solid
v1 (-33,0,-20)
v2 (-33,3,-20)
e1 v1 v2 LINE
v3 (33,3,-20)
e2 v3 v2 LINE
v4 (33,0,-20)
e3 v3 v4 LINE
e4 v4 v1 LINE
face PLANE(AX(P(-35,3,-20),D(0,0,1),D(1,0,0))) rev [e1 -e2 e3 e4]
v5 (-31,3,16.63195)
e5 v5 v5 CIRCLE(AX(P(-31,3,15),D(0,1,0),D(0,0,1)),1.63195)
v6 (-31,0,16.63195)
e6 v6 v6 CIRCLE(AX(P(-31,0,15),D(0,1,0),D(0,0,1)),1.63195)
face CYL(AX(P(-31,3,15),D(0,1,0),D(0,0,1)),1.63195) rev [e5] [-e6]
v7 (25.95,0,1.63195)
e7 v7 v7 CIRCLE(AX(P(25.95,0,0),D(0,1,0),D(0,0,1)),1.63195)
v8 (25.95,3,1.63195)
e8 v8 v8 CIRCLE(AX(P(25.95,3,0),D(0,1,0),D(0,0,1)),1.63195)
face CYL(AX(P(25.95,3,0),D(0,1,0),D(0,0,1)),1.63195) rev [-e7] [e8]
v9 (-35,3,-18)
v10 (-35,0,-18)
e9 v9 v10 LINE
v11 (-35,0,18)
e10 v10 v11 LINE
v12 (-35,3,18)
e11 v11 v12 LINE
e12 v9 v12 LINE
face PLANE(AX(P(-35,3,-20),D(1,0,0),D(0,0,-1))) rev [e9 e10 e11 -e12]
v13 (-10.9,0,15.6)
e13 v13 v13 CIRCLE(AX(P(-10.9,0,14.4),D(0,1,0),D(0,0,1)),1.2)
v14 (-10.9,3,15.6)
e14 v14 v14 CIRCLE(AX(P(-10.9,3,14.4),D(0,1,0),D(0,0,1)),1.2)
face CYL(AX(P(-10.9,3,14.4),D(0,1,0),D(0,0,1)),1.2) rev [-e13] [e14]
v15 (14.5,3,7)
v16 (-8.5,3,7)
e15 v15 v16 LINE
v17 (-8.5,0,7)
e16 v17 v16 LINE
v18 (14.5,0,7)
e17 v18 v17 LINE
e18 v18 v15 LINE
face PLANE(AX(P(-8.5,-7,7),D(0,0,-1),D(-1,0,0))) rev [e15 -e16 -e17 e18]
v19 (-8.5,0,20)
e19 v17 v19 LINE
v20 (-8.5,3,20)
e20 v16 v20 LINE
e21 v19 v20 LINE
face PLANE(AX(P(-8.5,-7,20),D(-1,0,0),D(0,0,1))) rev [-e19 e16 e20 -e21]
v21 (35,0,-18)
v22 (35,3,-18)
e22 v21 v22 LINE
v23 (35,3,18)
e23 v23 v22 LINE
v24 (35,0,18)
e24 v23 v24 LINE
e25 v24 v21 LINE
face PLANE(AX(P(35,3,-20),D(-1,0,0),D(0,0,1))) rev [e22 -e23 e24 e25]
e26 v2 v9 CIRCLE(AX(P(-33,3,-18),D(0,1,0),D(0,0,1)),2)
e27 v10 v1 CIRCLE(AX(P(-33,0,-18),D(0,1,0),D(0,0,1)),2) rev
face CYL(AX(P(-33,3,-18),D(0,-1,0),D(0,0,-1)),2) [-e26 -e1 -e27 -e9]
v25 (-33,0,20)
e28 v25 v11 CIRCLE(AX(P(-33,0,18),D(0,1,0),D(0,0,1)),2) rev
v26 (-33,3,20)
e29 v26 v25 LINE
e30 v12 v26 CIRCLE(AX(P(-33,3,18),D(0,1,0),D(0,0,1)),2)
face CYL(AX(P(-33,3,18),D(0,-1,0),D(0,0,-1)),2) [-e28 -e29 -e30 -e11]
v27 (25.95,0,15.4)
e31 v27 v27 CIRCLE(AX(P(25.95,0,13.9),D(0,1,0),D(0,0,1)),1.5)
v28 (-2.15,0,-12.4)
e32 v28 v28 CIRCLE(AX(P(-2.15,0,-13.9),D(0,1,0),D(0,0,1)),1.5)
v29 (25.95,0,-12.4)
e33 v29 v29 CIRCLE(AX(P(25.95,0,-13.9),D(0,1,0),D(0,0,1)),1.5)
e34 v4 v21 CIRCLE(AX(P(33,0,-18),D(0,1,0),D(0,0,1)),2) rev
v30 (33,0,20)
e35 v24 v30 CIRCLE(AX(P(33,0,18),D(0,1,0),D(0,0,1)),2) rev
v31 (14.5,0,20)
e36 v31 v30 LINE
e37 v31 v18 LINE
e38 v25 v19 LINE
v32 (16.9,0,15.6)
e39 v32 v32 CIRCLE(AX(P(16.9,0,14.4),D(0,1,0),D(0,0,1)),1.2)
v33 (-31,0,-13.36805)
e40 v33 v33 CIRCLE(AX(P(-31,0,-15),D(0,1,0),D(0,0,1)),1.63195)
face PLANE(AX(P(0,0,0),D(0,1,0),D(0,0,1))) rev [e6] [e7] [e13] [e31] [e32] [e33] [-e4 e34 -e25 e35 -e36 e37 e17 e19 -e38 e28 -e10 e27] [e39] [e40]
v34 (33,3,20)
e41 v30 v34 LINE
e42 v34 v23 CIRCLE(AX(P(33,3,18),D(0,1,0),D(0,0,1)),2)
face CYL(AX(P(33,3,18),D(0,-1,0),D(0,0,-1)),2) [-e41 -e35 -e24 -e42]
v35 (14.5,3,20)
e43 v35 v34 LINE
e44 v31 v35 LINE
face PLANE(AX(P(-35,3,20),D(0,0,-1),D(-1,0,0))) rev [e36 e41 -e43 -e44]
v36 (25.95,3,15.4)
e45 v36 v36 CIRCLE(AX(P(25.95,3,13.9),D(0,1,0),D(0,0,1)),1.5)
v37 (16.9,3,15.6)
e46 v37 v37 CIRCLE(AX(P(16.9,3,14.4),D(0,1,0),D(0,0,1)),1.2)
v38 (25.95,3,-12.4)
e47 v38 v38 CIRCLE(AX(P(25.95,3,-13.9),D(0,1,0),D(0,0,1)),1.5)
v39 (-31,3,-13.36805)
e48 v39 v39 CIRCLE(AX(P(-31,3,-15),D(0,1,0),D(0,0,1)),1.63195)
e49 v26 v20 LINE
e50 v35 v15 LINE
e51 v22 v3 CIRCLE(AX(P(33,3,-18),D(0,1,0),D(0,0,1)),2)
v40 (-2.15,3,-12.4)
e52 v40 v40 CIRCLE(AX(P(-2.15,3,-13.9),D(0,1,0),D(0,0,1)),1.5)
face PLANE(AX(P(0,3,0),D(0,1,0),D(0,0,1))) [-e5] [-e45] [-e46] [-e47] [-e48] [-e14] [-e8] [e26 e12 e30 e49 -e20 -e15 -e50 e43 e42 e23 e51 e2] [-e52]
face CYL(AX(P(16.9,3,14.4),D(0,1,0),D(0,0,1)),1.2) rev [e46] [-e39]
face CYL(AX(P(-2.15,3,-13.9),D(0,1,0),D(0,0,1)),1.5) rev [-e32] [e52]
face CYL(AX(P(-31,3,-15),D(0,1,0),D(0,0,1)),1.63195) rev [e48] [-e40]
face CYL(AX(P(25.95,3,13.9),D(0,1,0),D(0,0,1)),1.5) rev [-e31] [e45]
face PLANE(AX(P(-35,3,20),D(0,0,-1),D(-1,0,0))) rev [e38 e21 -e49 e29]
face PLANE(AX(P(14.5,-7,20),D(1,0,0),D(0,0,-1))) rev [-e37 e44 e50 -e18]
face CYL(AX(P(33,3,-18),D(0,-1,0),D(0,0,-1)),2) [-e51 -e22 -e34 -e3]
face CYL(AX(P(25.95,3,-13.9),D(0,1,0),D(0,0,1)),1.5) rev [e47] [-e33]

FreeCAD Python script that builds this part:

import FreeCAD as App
import Part
import Sketcher

V = App.Vector


def edges_at(feature, points):
    """Names of the edges that pass closest to the given points."""
    edges = feature.Shape.Edges
    near = lambda p: min(range(len(edges)), key=lambda i: edges[i].distToShape(Part.Vertex(*p))[0])
    return sorted({f"Edge{near(p) + 1}" for p in points})


def add_polygon(sketch, points):
    """Adds a closed chain of lines whose ends are joined by coincident constraints."""
    first, n = sketch.GeometryCount, len(points)
    for a, b in zip(points, points[1:] + points[:1]):
        sketch.addGeometry(Part.LineSegment(App.Vector(*a, 0), App.Vector(*b, 0)), False)
    for i in range(n):
        sketch.addConstraint(Sketcher.Constraint("Coincident", first + i, 2, first + (i + 1) % n, 1))

doc = App.newDocument("Part")
params = doc.addObject("Spreadsheet::Sheet", "Params")
for row, (alias, value) in enumerate([
    ("sketch1_width", "70 mm"),
    ("sketch1_height", "40 mm"),
    ("pad1_length", "3 mm"),
    ("sketch2_diameter", "3 mm"),
    ("hole_diameter", "3 mm"),
    ("hole2_diameter", "3.2639 mm"),
    ("sketch4_diameter", "2.4 mm"),
    ("hole3_diameter", "2.4 mm"),
    ("sketch5_width", "23 mm"),
    ("sketch5_height", "13 mm"),
    ("pocket1_length", "10 mm"),
    ("fillet_radius", "2 mm"),
], start=1):
    params.set(f"A{row}", alias)
    params.set(f"B{row}", "=" + value)
    params.setAlias(f"B{row}", alias)

body = doc.addObject("PartDesign::Body", "Body")

# Sketch on XZ plane
sketch1 = doc.addObject("Sketcher::SketchObject", "Sketch")
body.addObject(sketch1)
sketch1.AttachmentSupport = (doc.XZ_Plane, [""])
sketch1.MapMode = "FlatFace"
add_polygon(sketch1, [(-35, -20), (-35, 20), (35, 20), (35, -20)])  # lines 0-3
sketch1.addConstraint([
    Sketcher.Constraint("Vertical", 0),
    Sketcher.Constraint("Horizontal", 1),
    Sketcher.Constraint("Vertical", 2),
    Sketcher.Constraint("Horizontal", 3),
    Sketcher.Constraint("Symmetric", 0, 2, 2, 2, -1, 1),
    Sketcher.Constraint("DistanceX", 1, 1, 1, 2, 70.0),
    Sketcher.Constraint("DistanceY", 0, 1, 0, 2, 40.0),
])
sketch1.setExpression("Constraints[9]", "Params.sketch1_width")
sketch1.setExpression("Constraints[10]", "Params.sketch1_height")
pad1 = doc.addObject("PartDesign::Pad", "Pad")
body.addObject(pad1)
pad1.Profile = sketch1
pad1.setExpression("Length", "Params.pad1_length")
pad1.Reversed = True

# Sketch on XZ plane
sketch2 = doc.addObject("Sketcher::SketchObject", "Sketch001")
body.addObject(sketch2)
sketch2.AttachmentSupport = (doc.XZ_Plane, [""])
sketch2.MapMode = "FlatFace"
sketch2.AttachmentOffset = App.Placement(V(0, 0, -3), App.Rotation())
sketch2.addGeometry([
    Part.Circle(V(-2.1, -13.9, 0), V(0, 0, 1), 1.5),
    Part.Circle(V(25.9, -13.9, 0), V(0, 0, 1), 1.5),
    Part.Circle(V(25.9, 13.9, 0), V(0, 0, 1), 1.5),
], False)
sketch2.addConstraint([
    Sketcher.Constraint("Equal", 0, 1),
    Sketcher.Constraint("Equal", 1, 2),
    Sketcher.Constraint("Symmetric", 1, 3, 2, 3, -1),
    Sketcher.Constraint("Horizontal", 0, 3, 1, 3),
    Sketcher.Constraint("Diameter", 0, 3.0),
    Sketcher.Constraint("DistanceY", 0, 3, -1, 1, 13.9),
    Sketcher.Constraint("DistanceX", 0, 3, 1, 3, 28.1),
    Sketcher.Constraint("DistanceX", 0, 3, -1, 1, 2.15),
])
sketch2.setExpression("Constraints[4]", "Params.sketch2_diameter")
doc.recompute()
hole = doc.addObject("PartDesign::Hole", "Hole")
body.addObject(hole)
hole.Profile = sketch2
hole.ThreadType = "None"
hole.setExpression("Diameter", "Params.hole_diameter")
hole.DepthType = "ThroughAll"
hole.Reversed = True

# Sketch on XZ plane
sketch3 = doc.addObject("Sketcher::SketchObject", "Sketch002")
body.addObject(sketch3)
sketch3.AttachmentSupport = (doc.XZ_Plane, [""])
sketch3.MapMode = "FlatFace"
sketch3.AttachmentOffset = App.Placement(V(0, 0, -3), App.Rotation())
sketch3.addGeometry([
    Part.Circle(V(-31, -15, 0), V(0, 0, 1), 1.6),
    Part.Circle(V(-31, 15, 0), V(0, 0, 1), 1.6),
    Part.Circle(V(25.9, 0, 0), V(0, 0, 1), 1.6),
], False)
sketch3.addConstraint([
    Sketcher.Constraint("Equal", 0, 1),
    Sketcher.Constraint("Equal", 1, 2),
    Sketcher.Constraint("Symmetric", 0, 3, 1, 3, -1),
    Sketcher.Constraint("PointOnObject", 2, 3, -1),
    Sketcher.Constraint("DistanceX", 0, 3, -1, 1, 31.0),
    Sketcher.Constraint("DistanceY", 0, 3, -1, 1, 15.0),
    Sketcher.Constraint("Diameter", 0, 3.2639),
    Sketcher.Constraint("DistanceX", -1, 1, 2, 3, 25.95),
])
doc.recompute()
hole2 = doc.addObject("PartDesign::Hole", "Hole001")
body.addObject(hole2)
hole2.Profile = sketch3
hole2.ThreadType = "None"
hole2.setExpression("Diameter", "Params.hole2_diameter")
hole2.DepthType = "ThroughAll"
hole2.Reversed = True

# Sketch on XZ plane
sketch4 = doc.addObject("Sketcher::SketchObject", "Sketch003")
body.addObject(sketch4)
sketch4.AttachmentSupport = (doc.XZ_Plane, [""])
sketch4.MapMode = "FlatFace"
sketch4.AttachmentOffset = App.Placement(V(0, 0, -3), App.Rotation())
sketch4.addGeometry([
    Part.Circle(V(-10.9, 14.4, 0), V(0, 0, 1), 1.2),
    Part.Circle(V(16.9, 14.4, 0), V(0, 0, 1), 1.2),
], False)
sketch4.addConstraint([
    Sketcher.Constraint("Equal", 0, 1),
    Sketcher.Constraint("Horizontal", 0, 3, 1, 3),
    Sketcher.Constraint("Diameter", 0, 2.4),
    Sketcher.Constraint("DistanceX", 0, 3, -1, 1, 10.9),
    Sketcher.Constraint("DistanceY", -1, 1, 0, 3, 14.4),
    Sketcher.Constraint("DistanceX", -1, 1, 1, 3, 16.9),
])
sketch4.setExpression("Constraints[2]", "Params.sketch4_diameter")
doc.recompute()
hole3 = doc.addObject("PartDesign::Hole", "Hole002")
body.addObject(hole3)
hole3.Profile = sketch4
hole3.ThreadType = "None"
hole3.setExpression("Diameter", "Params.hole3_diameter")
hole3.DepthType = "ThroughAll"
hole3.Reversed = True

# Sketch on XZ plane
sketch5 = doc.addObject("Sketcher::SketchObject", "Sketch004")
body.addObject(sketch5)
sketch5.AttachmentSupport = (doc.XZ_Plane, [""])
sketch5.MapMode = "FlatFace"
sketch5.AttachmentOffset = App.Placement(V(0, 0, -3), App.Rotation())
add_polygon(sketch5, [(-8, 7), (-8, 20), (14, 20), (14, 7)])  # lines 0-3
sketch5.addConstraint([
    Sketcher.Constraint("Vertical", 0),
    Sketcher.Constraint("Horizontal", 1),
    Sketcher.Constraint("Vertical", 2),
    Sketcher.Constraint("Horizontal", 3),
    Sketcher.Constraint("DistanceX", 1, 1, 1, 2, 23.0),
    Sketcher.Constraint("DistanceY", 0, 1, 0, 2, 13.0),
    Sketcher.Constraint("DistanceY", -1, 1, 0, 2, 20.0),
    Sketcher.Constraint("DistanceX", 0, 2, -1, 1, 8.5),
])
sketch5.setExpression("Constraints[8]", "Params.sketch5_width")
sketch5.setExpression("Constraints[9]", "Params.sketch5_height")
pocket1 = doc.addObject("PartDesign::Pocket", "Pocket")
body.addObject(pocket1)
pocket1.Profile = sketch5
pocket1.setExpression("Length", "Params.pocket1_length")
pocket1.Reversed = True
doc.recompute()

fillet = doc.addObject("PartDesign::Fillet", "Fillet")
body.addObject(fillet)
fillet.Base = (pocket1, edges_at(pocket1, [
    (35, 1.5, 20),
    (-35, 1.5, 20),
    (-35, 1.5, -20),
    (35, 1.5, -20),
]))
fillet.setExpression("Radius", "Params.fillet_radius")

doc.recompute()
